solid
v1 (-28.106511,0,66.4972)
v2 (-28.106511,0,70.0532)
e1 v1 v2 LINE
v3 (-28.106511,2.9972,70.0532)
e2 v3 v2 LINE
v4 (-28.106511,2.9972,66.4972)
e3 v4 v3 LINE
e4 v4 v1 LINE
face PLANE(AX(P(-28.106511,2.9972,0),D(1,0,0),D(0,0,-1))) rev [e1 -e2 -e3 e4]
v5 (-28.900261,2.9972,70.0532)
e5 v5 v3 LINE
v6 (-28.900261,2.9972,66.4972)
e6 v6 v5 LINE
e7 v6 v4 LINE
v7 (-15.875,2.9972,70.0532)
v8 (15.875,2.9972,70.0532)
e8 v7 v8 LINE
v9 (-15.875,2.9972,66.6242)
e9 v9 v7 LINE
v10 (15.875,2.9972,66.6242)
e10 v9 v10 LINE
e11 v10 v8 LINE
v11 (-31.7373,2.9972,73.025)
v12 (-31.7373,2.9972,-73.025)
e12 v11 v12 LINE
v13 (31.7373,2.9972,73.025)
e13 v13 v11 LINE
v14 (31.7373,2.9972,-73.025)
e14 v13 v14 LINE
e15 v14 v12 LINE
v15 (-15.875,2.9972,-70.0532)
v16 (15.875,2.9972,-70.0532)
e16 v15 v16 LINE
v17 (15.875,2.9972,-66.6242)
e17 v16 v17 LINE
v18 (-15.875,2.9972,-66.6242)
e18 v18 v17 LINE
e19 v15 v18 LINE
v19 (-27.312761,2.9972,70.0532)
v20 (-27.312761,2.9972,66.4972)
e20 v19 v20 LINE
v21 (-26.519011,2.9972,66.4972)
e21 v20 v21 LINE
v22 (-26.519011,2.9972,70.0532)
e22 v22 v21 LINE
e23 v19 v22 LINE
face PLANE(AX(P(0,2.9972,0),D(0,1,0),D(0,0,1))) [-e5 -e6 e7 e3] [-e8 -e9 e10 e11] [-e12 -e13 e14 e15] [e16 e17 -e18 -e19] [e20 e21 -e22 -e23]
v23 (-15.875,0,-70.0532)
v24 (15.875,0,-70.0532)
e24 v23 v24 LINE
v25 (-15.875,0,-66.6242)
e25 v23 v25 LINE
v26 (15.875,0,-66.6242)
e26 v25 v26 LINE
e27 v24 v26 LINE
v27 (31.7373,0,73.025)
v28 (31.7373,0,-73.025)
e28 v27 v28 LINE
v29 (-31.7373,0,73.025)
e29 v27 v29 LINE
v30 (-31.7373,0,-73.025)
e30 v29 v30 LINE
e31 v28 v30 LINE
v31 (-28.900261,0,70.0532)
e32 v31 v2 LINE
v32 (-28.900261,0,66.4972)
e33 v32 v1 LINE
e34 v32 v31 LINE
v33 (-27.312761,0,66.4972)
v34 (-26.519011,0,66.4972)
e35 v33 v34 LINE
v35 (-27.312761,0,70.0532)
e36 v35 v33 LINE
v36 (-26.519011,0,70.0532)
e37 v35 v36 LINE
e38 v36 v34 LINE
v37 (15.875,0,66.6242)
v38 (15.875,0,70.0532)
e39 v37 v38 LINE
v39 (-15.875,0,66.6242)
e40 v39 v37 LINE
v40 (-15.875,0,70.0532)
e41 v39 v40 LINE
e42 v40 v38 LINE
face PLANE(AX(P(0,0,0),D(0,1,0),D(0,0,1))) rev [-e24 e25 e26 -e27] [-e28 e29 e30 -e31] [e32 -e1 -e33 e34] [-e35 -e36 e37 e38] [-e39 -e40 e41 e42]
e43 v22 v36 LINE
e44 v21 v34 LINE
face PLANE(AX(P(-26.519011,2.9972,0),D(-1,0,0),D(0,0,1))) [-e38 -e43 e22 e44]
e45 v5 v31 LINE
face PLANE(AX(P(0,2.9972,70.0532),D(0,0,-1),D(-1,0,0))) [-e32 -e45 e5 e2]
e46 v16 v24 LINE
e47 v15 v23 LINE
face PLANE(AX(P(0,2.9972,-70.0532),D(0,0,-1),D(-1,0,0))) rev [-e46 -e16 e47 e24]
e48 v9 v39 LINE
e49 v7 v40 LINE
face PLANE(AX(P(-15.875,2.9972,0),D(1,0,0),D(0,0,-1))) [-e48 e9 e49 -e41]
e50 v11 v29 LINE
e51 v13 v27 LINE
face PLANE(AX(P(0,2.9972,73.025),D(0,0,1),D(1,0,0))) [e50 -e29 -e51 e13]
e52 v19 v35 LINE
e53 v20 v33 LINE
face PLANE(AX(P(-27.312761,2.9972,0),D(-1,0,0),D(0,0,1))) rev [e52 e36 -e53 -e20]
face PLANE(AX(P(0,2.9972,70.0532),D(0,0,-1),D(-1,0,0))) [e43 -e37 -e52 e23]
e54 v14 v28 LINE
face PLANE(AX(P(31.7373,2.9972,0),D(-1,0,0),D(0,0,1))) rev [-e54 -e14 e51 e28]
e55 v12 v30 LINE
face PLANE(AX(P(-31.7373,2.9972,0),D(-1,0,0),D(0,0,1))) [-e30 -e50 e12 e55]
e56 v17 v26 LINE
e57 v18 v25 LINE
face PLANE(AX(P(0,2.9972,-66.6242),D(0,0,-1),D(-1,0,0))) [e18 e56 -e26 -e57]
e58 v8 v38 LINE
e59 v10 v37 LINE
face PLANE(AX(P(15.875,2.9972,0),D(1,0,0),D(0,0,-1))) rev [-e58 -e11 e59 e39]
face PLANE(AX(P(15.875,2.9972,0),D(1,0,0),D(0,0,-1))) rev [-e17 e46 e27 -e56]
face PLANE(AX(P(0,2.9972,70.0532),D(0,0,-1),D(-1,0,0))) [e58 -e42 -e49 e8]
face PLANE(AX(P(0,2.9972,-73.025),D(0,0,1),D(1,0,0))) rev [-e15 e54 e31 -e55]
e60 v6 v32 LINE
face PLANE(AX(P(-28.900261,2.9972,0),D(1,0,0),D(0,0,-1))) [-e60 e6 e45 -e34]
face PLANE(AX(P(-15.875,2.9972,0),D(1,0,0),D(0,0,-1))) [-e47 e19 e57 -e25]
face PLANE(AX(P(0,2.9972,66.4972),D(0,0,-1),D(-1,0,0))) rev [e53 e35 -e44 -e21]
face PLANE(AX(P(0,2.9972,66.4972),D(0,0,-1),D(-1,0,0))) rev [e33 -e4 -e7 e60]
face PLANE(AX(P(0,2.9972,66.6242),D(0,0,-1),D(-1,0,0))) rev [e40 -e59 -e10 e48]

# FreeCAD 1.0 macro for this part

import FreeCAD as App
import Part
import Sketcher

V = App.Vector
Q = App.Units.Quantity

doc = App.newDocument("Part")
body = doc.addObject("PartDesign::Body", "Body")

# Sketch on XZ plane
sketch1 = doc.addObject("Sketcher::SketchObject", "Sketch")
body.addObject(sketch1)
sketch1.AttachmentSupport = (doc.XZ_Plane, [""])
sketch1.MapMode = "FlatFace"
sketch1.addGeometry([
    Part.LineSegment(V(-31.7, -73, 0), V(-31.7, 73, 0)),  # 0
    Part.LineSegment(V(-31.7, 73, 0), V(31.7, 73, 0)),  # 1
    Part.LineSegment(V(31.7, 73, 0), V(31.7, -73, 0)),  # 2
    Part.LineSegment(V(31.7, -73, 0), V(-31.7, -73, 0)),  # 3
    Part.LineSegment(V(-28.1, 70.1, 0), V(-28.9, 70.1, 0)),  # 4
    Part.LineSegment(V(-28.9, 70.1, 0), V(-28.9, 66.5, 0)),  # 5
    Part.LineSegment(V(-28.9, 66.5, 0), V(-28.1, 66.5, 0)),  # 6
    Part.LineSegment(V(-28.1, 66.5, 0), V(-28.1, 70.1, 0)),  # 7
    Part.LineSegment(V(-26.5, 70.1, 0), V(-27.3, 70.1, 0)),  # 8
    Part.LineSegment(V(-27.3, 70.1, 0), V(-27.3, 66.5, 0)),  # 9
    Part.LineSegment(V(-27.3, 66.5, 0), V(-26.5, 66.5, 0)),  # 10
    Part.LineSegment(V(-26.5, 66.5, 0), V(-26.5, 70.1, 0)),  # 11
    Part.LineSegment(V(15.9, 70.1, 0), V(-15.9, 70.1, 0)),  # 12
    Part.LineSegment(V(-15.9, 70.1, 0), V(-15.9, 66.6, 0)),  # 13
    Part.LineSegment(V(-15.9, 66.6, 0), V(15.9, 66.6, 0)),  # 14
    Part.LineSegment(V(15.9, 66.6, 0), V(15.9, 70.1, 0)),  # 15
    Part.LineSegment(V(15.9, -66.6, 0), V(-15.9, -66.6, 0)),  # 16
    Part.LineSegment(V(-15.9, -66.6, 0), V(-15.9, -70.1, 0)),  # 17
    Part.LineSegment(V(-15.9, -70.1, 0), V(15.9, -70.1, 0)),  # 18
    Part.LineSegment(V(15.9, -70.1, 0), V(15.9, -66.6, 0)),  # 19
], False)
sketch1.addConstraint([
    Sketcher.Constraint("Coincident", 0, 2, 1, 1),
    Sketcher.Constraint("Coincident", 1, 2, 2, 1),
    Sketcher.Constraint("Coincident", 2, 2, 3, 1),
    Sketcher.Constraint("Coincident", 3, 2, 0, 1),
    Sketcher.Constraint("Coincident", 4, 2, 5, 1),
    Sketcher.Constraint("Coincident", 5, 2, 6, 1),
    Sketcher.Constraint("Coincident", 6, 2, 7, 1),
    Sketcher.Constraint("Coincident", 7, 2, 4, 1),
    Sketcher.Constraint("Coincident", 8, 2, 9, 1),
    Sketcher.Constraint("Coincident", 9, 2, 10, 1),
    Sketcher.Constraint("Coincident", 10, 2, 11, 1),
    Sketcher.Constraint("Coincident", 11, 2, 8, 1),
    Sketcher.Constraint("Coincident", 12, 2, 13, 1),
    Sketcher.Constraint("Coincident", 13, 2, 14, 1),
    Sketcher.Constraint("Coincident", 14, 2, 15, 1),
    Sketcher.Constraint("Coincident", 15, 2, 12, 1),
    Sketcher.Constraint("Coincident", 16, 2, 17, 1),
    Sketcher.Constraint("Coincident", 17, 2, 18, 1),
    Sketcher.Constraint("Coincident", 18, 2, 19, 1),
    Sketcher.Constraint("Coincident", 19, 2, 16, 1),
    Sketcher.Constraint("Vertical", 0),
    Sketcher.Constraint("Horizontal", 1),
    Sketcher.Constraint("Vertical", 2),
    Sketcher.Constraint("Horizontal", 3),
    Sketcher.Constraint("Horizontal", 4),
    Sketcher.Constraint("Vertical", 5),
    Sketcher.Constraint("Horizontal", 6),
    Sketcher.Constraint("Vertical", 7),
    Sketcher.Constraint("Horizontal", 8),
    Sketcher.Constraint("Vertical", 9),
    Sketcher.Constraint("Horizontal", 10),
    Sketcher.Constraint("Vertical", 11),
    Sketcher.Constraint("Horizontal", 12),
    Sketcher.Constraint("Vertical", 13),
    Sketcher.Constraint("Horizontal", 14),
    Sketcher.Constraint("Vertical", 15),
    Sketcher.Constraint("Horizontal", 16),
    Sketcher.Constraint("Vertical", 17),
    Sketcher.Constraint("Horizontal", 18),
    Sketcher.Constraint("Vertical", 19),
    Sketcher.Constraint("Symmetric", 0, 2, 2, 2, -1, 1),
    Sketcher.Constraint("Symmetric", 14, 2, 16, 2, -1, 1),
    Sketcher.Constraint("Symmetric", 12, 2, 18, 2, -1, 1),
    Sketcher.Constraint("Horizontal", 7, 2, 8, 2),
    Sketcher.Constraint("Horizontal", 6, 2, 9, 2),
    Sketcher.Constraint("Horizontal", 11, 2, 12, 2),
    Sketcher.Constraint("Vertical", 13, 2, 16, 2),
    Sketcher.Constraint("Equal", 6, 8),
    Sketcher.Constraint("DistanceX", 12, 2, 12, 1, Q("1.25 in")),
    Sketcher.Constraint("DistanceY", 0, 1, 0, 2, Q("5.75 in")),
    Sketcher.Constraint("DistanceY", 5, 2, 5, 1, Q("0.14 in")),
    Sketcher.Constraint("DistanceX", 1, 1, 1, 2, Q("2.499 in")),
    Sketcher.Constraint("DistanceX", 4, 2, 4, 1, Q("0.03125 in")),
    Sketcher.Constraint("DistanceY", 13, 2, 13, 1, Q("0.135 in")),
    Sketcher.Constraint("DistanceY", -1, 1, 4, 2, Q("2.758 in")),
    Sketcher.Constraint("DistanceX", 7, 2, 8, 2, Q("0.03125 in")),
    Sketcher.Constraint("DistanceX", 4, 2, -1, 1, Q("28.900261 mm")),
])
pad1 = doc.addObject("PartDesign::Pad", "Pad")
body.addObject(pad1)
pad1.Profile = sketch1
pad1.Length = Q("0.118 in")
pad1.Reversed = True

doc.recompute()
